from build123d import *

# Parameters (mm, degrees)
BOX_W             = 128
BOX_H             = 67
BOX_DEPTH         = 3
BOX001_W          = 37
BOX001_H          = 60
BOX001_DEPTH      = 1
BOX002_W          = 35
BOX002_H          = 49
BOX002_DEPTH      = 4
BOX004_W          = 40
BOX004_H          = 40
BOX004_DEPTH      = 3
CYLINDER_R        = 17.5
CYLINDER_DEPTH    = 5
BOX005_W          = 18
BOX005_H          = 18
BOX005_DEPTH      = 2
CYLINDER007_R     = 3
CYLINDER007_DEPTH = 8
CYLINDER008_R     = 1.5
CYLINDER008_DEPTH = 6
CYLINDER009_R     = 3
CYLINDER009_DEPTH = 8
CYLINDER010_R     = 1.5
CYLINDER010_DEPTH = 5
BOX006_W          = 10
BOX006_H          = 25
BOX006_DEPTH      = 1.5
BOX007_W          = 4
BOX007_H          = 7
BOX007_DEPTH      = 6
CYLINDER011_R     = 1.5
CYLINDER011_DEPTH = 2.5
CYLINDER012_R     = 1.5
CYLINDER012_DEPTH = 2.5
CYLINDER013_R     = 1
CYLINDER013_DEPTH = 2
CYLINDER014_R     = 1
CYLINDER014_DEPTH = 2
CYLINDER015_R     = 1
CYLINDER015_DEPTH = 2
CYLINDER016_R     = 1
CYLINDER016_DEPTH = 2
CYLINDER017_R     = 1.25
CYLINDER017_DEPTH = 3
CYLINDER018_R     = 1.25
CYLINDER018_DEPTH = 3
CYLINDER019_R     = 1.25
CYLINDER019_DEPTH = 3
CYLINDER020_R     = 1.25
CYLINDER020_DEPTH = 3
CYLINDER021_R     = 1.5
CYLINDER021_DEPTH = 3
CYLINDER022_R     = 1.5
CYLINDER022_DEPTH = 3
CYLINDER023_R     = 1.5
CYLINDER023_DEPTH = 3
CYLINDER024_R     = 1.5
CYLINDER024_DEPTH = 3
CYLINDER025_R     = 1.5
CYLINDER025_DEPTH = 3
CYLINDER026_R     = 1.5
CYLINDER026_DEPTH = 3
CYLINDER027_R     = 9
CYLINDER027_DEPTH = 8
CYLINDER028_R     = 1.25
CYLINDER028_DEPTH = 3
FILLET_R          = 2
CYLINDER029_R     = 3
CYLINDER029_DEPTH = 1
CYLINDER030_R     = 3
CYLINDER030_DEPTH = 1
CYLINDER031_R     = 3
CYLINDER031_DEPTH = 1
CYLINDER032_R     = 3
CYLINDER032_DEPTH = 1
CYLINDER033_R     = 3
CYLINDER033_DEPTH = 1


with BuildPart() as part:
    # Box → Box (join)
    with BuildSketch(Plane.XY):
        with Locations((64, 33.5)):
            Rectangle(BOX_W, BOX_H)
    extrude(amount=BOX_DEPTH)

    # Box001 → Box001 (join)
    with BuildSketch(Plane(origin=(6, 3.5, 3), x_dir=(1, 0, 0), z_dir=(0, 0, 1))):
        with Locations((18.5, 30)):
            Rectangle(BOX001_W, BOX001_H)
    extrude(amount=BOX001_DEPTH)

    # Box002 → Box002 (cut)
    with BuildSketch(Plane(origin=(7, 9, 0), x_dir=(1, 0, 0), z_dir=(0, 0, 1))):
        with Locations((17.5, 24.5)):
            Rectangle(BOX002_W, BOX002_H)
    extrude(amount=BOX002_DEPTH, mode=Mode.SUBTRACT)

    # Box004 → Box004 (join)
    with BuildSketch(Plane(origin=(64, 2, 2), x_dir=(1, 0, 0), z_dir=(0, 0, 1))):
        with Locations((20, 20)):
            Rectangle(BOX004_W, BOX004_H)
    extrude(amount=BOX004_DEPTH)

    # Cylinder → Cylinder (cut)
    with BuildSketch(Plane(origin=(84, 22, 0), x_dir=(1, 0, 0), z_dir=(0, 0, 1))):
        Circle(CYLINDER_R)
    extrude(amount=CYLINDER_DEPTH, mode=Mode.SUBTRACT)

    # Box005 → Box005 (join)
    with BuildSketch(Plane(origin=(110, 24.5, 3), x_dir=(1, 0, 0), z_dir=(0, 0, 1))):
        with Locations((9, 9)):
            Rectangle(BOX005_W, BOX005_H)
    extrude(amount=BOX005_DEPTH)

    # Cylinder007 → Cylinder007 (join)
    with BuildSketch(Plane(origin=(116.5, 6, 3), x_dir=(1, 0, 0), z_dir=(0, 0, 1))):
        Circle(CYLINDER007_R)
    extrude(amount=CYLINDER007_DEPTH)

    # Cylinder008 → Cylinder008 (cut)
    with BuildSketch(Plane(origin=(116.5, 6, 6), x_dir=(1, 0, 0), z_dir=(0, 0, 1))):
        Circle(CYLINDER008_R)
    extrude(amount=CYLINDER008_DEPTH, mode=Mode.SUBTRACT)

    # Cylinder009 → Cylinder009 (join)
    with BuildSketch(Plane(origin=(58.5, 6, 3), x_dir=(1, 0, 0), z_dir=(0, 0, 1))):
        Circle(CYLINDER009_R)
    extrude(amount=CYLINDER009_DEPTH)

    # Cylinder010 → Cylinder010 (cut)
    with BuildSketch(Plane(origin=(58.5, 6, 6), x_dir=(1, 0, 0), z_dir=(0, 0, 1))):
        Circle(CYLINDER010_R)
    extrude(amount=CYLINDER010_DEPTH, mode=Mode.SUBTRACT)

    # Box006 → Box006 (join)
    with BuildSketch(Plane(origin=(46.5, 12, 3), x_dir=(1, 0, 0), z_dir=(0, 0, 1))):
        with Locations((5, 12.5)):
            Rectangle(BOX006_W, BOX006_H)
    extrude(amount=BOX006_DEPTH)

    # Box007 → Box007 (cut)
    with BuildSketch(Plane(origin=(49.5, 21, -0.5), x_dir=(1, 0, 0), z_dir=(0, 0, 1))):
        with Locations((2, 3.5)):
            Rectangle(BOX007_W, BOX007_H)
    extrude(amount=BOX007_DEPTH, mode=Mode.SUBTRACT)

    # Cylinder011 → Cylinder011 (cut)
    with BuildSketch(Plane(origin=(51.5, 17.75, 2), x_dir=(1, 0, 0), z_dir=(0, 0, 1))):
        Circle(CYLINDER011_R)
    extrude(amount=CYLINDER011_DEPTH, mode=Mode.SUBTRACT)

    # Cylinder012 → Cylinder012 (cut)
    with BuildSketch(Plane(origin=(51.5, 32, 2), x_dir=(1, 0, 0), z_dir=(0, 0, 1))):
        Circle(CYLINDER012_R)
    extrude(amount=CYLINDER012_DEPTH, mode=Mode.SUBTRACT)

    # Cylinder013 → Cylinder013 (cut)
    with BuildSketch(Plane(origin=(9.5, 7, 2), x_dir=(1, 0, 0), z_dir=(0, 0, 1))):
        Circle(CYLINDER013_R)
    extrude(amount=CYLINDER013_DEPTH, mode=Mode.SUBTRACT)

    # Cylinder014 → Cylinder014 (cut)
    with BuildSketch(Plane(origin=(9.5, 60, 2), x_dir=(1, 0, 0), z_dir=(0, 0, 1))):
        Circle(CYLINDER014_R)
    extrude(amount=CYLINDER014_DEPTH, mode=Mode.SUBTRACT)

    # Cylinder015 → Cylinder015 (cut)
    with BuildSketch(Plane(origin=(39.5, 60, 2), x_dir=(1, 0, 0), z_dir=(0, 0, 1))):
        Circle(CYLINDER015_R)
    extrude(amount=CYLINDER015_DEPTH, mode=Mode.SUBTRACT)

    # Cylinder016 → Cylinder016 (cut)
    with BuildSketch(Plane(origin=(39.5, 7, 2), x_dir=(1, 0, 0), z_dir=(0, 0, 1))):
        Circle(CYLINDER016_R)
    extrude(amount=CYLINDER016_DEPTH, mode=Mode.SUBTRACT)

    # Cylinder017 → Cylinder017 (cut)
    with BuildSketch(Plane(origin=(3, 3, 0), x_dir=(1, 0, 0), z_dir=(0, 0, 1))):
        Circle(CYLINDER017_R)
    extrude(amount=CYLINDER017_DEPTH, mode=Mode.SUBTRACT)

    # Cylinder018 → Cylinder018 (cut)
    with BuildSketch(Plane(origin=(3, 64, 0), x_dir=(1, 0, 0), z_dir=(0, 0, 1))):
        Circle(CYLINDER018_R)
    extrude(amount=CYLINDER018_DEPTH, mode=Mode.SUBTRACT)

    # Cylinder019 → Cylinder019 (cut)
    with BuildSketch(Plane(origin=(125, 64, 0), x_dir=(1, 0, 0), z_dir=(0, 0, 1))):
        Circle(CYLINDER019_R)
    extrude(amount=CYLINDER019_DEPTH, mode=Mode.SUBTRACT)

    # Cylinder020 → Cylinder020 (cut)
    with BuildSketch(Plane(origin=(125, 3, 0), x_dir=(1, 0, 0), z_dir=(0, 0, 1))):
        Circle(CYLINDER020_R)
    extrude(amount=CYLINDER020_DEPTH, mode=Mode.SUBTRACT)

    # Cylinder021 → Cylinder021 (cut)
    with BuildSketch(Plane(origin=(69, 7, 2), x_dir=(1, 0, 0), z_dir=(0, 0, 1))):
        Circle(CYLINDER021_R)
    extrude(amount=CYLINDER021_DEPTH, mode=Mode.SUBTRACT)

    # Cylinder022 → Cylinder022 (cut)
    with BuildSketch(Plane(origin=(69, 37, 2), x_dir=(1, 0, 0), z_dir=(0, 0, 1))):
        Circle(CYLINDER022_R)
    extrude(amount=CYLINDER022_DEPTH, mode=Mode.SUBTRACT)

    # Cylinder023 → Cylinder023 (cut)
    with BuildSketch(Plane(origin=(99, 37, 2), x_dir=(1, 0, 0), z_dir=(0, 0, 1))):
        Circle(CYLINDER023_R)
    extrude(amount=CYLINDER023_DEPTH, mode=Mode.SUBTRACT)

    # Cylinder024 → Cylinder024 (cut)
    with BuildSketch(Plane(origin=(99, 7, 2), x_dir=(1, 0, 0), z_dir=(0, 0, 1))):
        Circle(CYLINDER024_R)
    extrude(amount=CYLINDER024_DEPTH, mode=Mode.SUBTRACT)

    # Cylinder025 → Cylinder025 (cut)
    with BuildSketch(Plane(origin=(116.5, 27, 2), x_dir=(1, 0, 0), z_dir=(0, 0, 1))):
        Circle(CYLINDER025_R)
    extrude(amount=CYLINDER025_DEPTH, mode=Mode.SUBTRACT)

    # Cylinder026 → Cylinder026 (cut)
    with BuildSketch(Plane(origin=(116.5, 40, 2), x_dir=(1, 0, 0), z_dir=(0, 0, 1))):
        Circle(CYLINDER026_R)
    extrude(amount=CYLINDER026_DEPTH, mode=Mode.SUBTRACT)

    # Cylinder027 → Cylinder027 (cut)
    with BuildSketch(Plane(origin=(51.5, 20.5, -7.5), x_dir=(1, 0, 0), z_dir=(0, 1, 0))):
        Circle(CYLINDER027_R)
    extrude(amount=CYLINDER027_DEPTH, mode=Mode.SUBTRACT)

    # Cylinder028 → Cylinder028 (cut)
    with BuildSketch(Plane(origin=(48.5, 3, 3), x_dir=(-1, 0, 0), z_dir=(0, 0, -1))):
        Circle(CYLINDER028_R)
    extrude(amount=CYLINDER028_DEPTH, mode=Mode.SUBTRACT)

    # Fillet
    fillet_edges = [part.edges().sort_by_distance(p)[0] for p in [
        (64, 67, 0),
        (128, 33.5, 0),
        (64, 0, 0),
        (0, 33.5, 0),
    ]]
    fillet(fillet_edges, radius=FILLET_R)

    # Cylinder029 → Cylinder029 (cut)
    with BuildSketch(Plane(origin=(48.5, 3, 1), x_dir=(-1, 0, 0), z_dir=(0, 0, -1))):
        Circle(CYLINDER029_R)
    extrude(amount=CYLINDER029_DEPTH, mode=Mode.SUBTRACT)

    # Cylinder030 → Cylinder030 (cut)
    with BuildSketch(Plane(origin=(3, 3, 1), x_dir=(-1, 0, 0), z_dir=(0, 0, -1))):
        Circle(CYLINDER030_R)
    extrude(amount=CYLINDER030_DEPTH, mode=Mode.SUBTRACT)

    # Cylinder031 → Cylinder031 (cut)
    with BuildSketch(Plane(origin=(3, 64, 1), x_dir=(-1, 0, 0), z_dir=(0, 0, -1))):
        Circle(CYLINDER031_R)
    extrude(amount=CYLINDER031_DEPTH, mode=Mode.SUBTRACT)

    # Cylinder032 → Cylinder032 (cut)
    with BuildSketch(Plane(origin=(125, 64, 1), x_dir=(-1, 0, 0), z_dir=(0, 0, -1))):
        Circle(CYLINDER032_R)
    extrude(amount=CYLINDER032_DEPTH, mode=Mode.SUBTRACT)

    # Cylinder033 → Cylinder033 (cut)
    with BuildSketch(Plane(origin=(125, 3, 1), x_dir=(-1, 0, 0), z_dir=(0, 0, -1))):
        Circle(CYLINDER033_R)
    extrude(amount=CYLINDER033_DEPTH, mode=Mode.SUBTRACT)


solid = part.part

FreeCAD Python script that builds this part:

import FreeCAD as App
import Part
import Sketcher
from FreeCAD import Vector
Q = App.Units.Quantity


def edges_at(feature, points):
    """Names of the edges that pass closest to the given points."""
    edges = feature.Shape.Edges
    near = lambda p: min(range(len(edges)), key=lambda i: edges[i].distToShape(Part.Vertex(*p))[0])
    return sorted({f"Edge{near(p) + 1}" for p in points})


def add_polygon(sketch, points):
    """Adds a closed chain of lines whose ends are joined by coincident constraints."""
    first, n = sketch.GeometryCount, len(points)
    for a, b in zip(points, points[1:] + points[:1]):
        sketch.addGeometry(Part.LineSegment(App.Vector(*a, 0), App.Vector(*b, 0)), False)
    for i in range(n):
        sketch.addConstraint(Sketcher.Constraint("Coincident", first + i, 2, first + (i + 1) % n, 1))

doc = App.newDocument("Part")
body = doc.addObject("PartDesign::Body", "Body")

sketch1 = body.newObject("Sketcher::SketchObject", "Sketch")
sketch1.AttachmentSupport = (doc.getObject("XY_Plane"), [""])
sketch1.MapMode = "FlatFace"
add_polygon(sketch1, [(0, 67), (0, 0), (128, 0), (128, 67)])
sketch1.addConstraint(Sketcher.Constraint("Vertical", 0))
sketch1.addConstraint(Sketcher.Constraint("Horizontal", 1))
sketch1.addConstraint(Sketcher.Constraint("Vertical", 2))
sketch1.addConstraint(Sketcher.Constraint("Horizontal", 3))
sketch1.addConstraint(Sketcher.Constraint("Coincident", 0, 2, -1, 1))
sketch1.addConstraint(Sketcher.Constraint("DistanceX", 1, 1, 1, 2, Q("128 mm")))
sketch1.addConstraint(Sketcher.Constraint("DistanceY", 0, 2, 0, 1, Q("67 mm")))
pad1 = body.newObject("PartDesign::Pad", "Pad")
pad1.Profile = sketch1
pad1.Length = 3

sketch2 = body.newObject("Sketcher::SketchObject", "Sketch001")
sketch2.AttachmentSupport = (doc.getObject("XY_Plane"), [""])
sketch2.MapMode = "FlatFace"
sketch2.AttachmentOffset = App.Placement(Vector(0, 0, 3), App.Rotation())
add_polygon(sketch2, [(6, 64), (6, 4), (43, 4), (43, 64)])
sketch2.addConstraint(Sketcher.Constraint("Vertical", 0))
sketch2.addConstraint(Sketcher.Constraint("Horizontal", 1))
sketch2.addConstraint(Sketcher.Constraint("Vertical", 2))
sketch2.addConstraint(Sketcher.Constraint("Horizontal", 3))
sketch2.addConstraint(Sketcher.Constraint("DistanceX", 1, 1, 1, 2, Q("37 mm")))
sketch2.addConstraint(Sketcher.Constraint("DistanceY", 0, 2, 0, 1, Q("60 mm")))
sketch2.addConstraint(Sketcher.Constraint("DistanceX", -1, 1, 0, 2, Q("6 mm")))
sketch2.addConstraint(Sketcher.Constraint("DistanceY", -1, 1, 0, 2, Q("3.5 mm")))
pad2 = body.newObject("PartDesign::Pad", "Pad001")
pad2.Profile = sketch2
pad2.Length = 1

sketch3 = body.newObject("Sketcher::SketchObject", "Sketch002")
sketch3.AttachmentSupport = (doc.getObject("XY_Plane"), [""])
sketch3.MapMode = "FlatFace"
add_polygon(sketch3, [(7, 58), (7, 9), (42, 9), (42, 58)])
sketch3.addConstraint(Sketcher.Constraint("Vertical", 0))
sketch3.addConstraint(Sketcher.Constraint("Horizontal", 1))
sketch3.addConstraint(Sketcher.Constraint("Vertical", 2))
sketch3.addConstraint(Sketcher.Constraint("Horizontal", 3))
sketch3.addConstraint(Sketcher.Constraint("DistanceX", 1, 1, 1, 2, Q("35 mm")))
sketch3.addConstraint(Sketcher.Constraint("DistanceY", 0, 2, 0, 1, Q("49 mm")))
sketch3.addConstraint(Sketcher.Constraint("DistanceX", -1, 1, 0, 2, Q("7 mm")))
sketch3.addConstraint(Sketcher.Constraint("DistanceY", -1, 1, 0, 2, Q("9 mm")))
pocket1 = body.newObject("PartDesign::Pocket", "Pocket")
pocket1.Profile = sketch3
pocket1.Length = 4
pocket1.Reversed = True

sketch4 = body.newObject("Sketcher::SketchObject", "Sketch003")
sketch4.AttachmentSupport = (doc.getObject("XY_Plane"), [""])
sketch4.MapMode = "FlatFace"
sketch4.AttachmentOffset = App.Placement(Vector(0, 0, 2), App.Rotation())
add_polygon(sketch4, [(64, 42), (64, 2), (104, 2), (104, 42)])
sketch4.addConstraint(Sketcher.Constraint("Vertical", 0))
sketch4.addConstraint(Sketcher.Constraint("Horizontal", 1))
sketch4.addConstraint(Sketcher.Constraint("Vertical", 2))
sketch4.addConstraint(Sketcher.Constraint("Horizontal", 3))
sketch4.addConstraint(Sketcher.Constraint("Equal", 3, 0))
sketch4.addConstraint(Sketcher.Constraint("DistanceX", 1, 1, 1, 2, Q("40 mm")))
sketch4.addConstraint(Sketcher.Constraint("DistanceX", -1, 1, 0, 2, Q("64 mm")))
sketch4.addConstraint(Sketcher.Constraint("DistanceY", -1, 1, 0, 2, Q("2 mm")))
pad3 = body.newObject("PartDesign::Pad", "Pad002")
pad3.Profile = sketch4
pad3.Length = 3

sketch5 = body.newObject("Sketcher::SketchObject", "Sketch004")
sketch5.AttachmentSupport = (doc.getObject("XY_Plane"), [""])
sketch5.MapMode = "FlatFace"
sketch5.addGeometry(Part.Circle(Vector(84, 22, 0), Vector(0, 0, 1), 18), False)
sketch5.addConstraint(Sketcher.Constraint("Diameter", 0, Q("35 mm")))
sketch5.addConstraint(Sketcher.Constraint("DistanceX", -1, 1, 0, 3, Q("84 mm")))
sketch5.addConstraint(Sketcher.Constraint("DistanceY", -1, 1, 0, 3, Q("22 mm")))
pocket2 = body.newObject("PartDesign::Pocket", "Pocket001")
pocket2.Profile = sketch5
pocket2.Length = 5
pocket2.Reversed = True

sketch6 = body.newObject("Sketcher::SketchObject", "Sketch005")
sketch6.AttachmentSupport = (doc.getObject("XY_Plane"), [""])
sketch6.MapMode = "FlatFace"
sketch6.AttachmentOffset = App.Placement(Vector(0, 0, 3), App.Rotation())
add_polygon(sketch6, [(110, 42), (110, 24), (128, 24), (128, 42)])
sketch6.addConstraint(Sketcher.Constraint("Vertical", 0))
sketch6.addConstraint(Sketcher.Constraint("Horizontal", 1))
sketch6.addConstraint(Sketcher.Constraint("Vertical", 2))
sketch6.addConstraint(Sketcher.Constraint("Horizontal", 3))
sketch6.addConstraint(Sketcher.Constraint("Equal", 3, 0))
sketch6.addConstraint(Sketcher.Constraint("DistanceX", 1, 1, 1, 2, Q("18 mm")))
sketch6.addConstraint(Sketcher.Constraint("DistanceX", -1, 1, 0, 2, Q("110 mm")))
sketch6.addConstraint(Sketcher.Constraint("DistanceY", -1, 1, 0, 2, Q("24.5 mm")))
pad4 = body.newObject("PartDesign::Pad", "Pad003")
pad4.Profile = sketch6
pad4.Length = 2

sketch7 = body.newObject("Sketcher::SketchObject", "Sketch006")
sketch7.AttachmentSupport = (doc.getObject("XY_Plane"), [""])
sketch7.MapMode = "FlatFace"
sketch7.AttachmentOffset = App.Placement(Vector(0, 0, 3), App.Rotation())
sketch7.addGeometry(Part.Circle(Vector(116.5, 6, 0), Vector(0, 0, 1), 3), False)
sketch7.addConstraint(Sketcher.Constraint("Diameter", 0, Q("6 mm")))
sketch7.addConstraint(Sketcher.Constraint("DistanceY", -1, 1, 0, 3, Q("6 mm")))
sketch7.addConstraint(Sketcher.Constraint("DistanceX", -1, 1, 0, 3, Q("116.5 mm")))
pad5 = body.newObject("PartDesign::Pad", "Pad004")
pad5.Profile = sketch7
pad5.Length = 8

sketch8 = body.newObject("Sketcher::SketchObject", "Sketch007")
sketch8.AttachmentSupport = (doc.getObject("XY_Plane"), [""])
sketch8.MapMode = "FlatFace"
sketch8.AttachmentOffset = App.Placement(Vector(0, 0, 6), App.Rotation())
sketch8.addGeometry(Part.Circle(Vector(116.5, 6, 0), Vector(0, 0, 1), 1.5), False)
sketch8.addConstraint(Sketcher.Constraint("Diameter", 0, Q("3 mm")))
sketch8.addConstraint(Sketcher.Constraint("DistanceY", -1, 1, 0, 3, Q("6 mm")))
sketch8.addConstraint(Sketcher.Constraint("DistanceX", -1, 1, 0, 3, Q("116.5 mm")))
pocket3 = body.newObject("PartDesign::Pocket", "Pocket002")
pocket3.Profile = sketch8
pocket3.Length = 6
pocket3.Reversed = True

sketch9 = body.newObject("Sketcher::SketchObject", "Sketch008")
sketch9.AttachmentSupport = (doc.getObject("XY_Plane"), [""])
sketch9.MapMode = "FlatFace"
sketch9.AttachmentOffset = App.Placement(Vector(0, 0, 3), App.Rotation())
sketch9.addGeometry(Part.Circle(Vector(58.5, 6, 0), Vector(0, 0, 1), 3), False)
sketch9.addConstraint(Sketcher.Constraint("Diameter", 0, Q("6 mm")))
sketch9.addConstraint(Sketcher.Constraint("DistanceY", -1, 1, 0, 3, Q("6 mm")))
sketch9.addConstraint(Sketcher.Constraint("DistanceX", -1, 1, 0, 3, Q("58.5 mm")))
pad6 = body.newObject("PartDesign::Pad", "Pad005")
pad6.Profile = sketch9
pad6.Length = 8

sketch10 = body.newObject("Sketcher::SketchObject", "Sketch009")
sketch10.AttachmentSupport = (doc.getObject("XY_Plane"), [""])
sketch10.MapMode = "FlatFace"
sketch10.AttachmentOffset = App.Placement(Vector(0, 0, 6), App.Rotation())
sketch10.addGeometry(Part.Circle(Vector(58.5, 6, 0), Vector(0, 0, 1), 1.5), False)
sketch10.addConstraint(Sketcher.Constraint("Diameter", 0, Q("3 mm")))
sketch10.addConstraint(Sketcher.Constraint("DistanceY", -1, 1, 0, 3, Q("6 mm")))
sketch10.addConstraint(Sketcher.Constraint("DistanceX", -1, 1, 0, 3, Q("58.5 mm")))
pocket4 = body.newObject("PartDesign::Pocket", "Pocket003")
pocket4.Profile = sketch10
pocket4.Length = 5
pocket4.Reversed = True

sketch11 = body.newObject("Sketcher::SketchObject", "Sketch010")
sketch11.AttachmentSupport = (doc.getObject("XY_Plane"), [""])
sketch11.MapMode = "FlatFace"
sketch11.AttachmentOffset = App.Placement(Vector(0, 0, 3), App.Rotation())
add_polygon(sketch11, [(46, 37), (46, 12), (56, 12), (56, 37)])
sketch11.addConstraint(Sketcher.Constraint("Vertical", 0))
sketch11.addConstraint(Sketcher.Constraint("Horizontal", 1))
sketch11.addConstraint(Sketcher.Constraint("Vertical", 2))
sketch11.addConstraint(Sketcher.Constraint("Horizontal", 3))
sketch11.addConstraint(Sketcher.Constraint("DistanceX", 1, 1, 1, 2, Q("10 mm")))
sketch11.addConstraint(Sketcher.Constraint("DistanceY", 0, 2, 0, 1, Q("25 mm")))
sketch11.addConstraint(Sketcher.Constraint("DistanceY", -1, 1, 0, 2, Q("12 mm")))
sketch11.addConstraint(Sketcher.Constraint("DistanceX", -1, 1, 0, 2, Q("46.5 mm")))
pad7 = body.newObject("PartDesign::Pad", "Pad006")
pad7.Profile = sketch11
pad7.Length = 1.5

sketch12 = body.newObject("Sketcher::SketchObject", "Sketch011")
sketch12.AttachmentSupport = (doc.getObject("XY_Plane"), [""])
sketch12.MapMode = "FlatFace"
sketch12.AttachmentOffset = App.Placement(Vector(0, 0, -0.5), App.Rotation())
add_polygon(sketch12, [(49.5, 28), (49.5, 21), (53.5, 21), (53.5, 28)])
sketch12.addConstraint(Sketcher.Constraint("Vertical", 0))
sketch12.addConstraint(Sketcher.Constraint("Horizontal", 1))
sketch12.addConstraint(Sketcher.Constraint("Vertical", 2))
sketch12.addConstraint(Sketcher.Constraint("Horizontal", 3))
sketch12.addConstraint(Sketcher.Constraint("DistanceX", 1, 1, 1, 2, Q("4 mm")))
sketch12.addConstraint(Sketcher.Constraint("DistanceY", 0, 2, 0, 1, Q("7 mm")))
sketch12.addConstraint(Sketcher.Constraint("DistanceY", -1, 1, 0, 2, Q("21 mm")))
sketch12.addConstraint(Sketcher.Constraint("DistanceX", -1, 1, 0, 2, Q("49.5 mm")))
pocket5 = body.newObject("PartDesign::Pocket", "Pocket004")
pocket5.Profile = sketch12
pocket5.Length = 6
pocket5.Reversed = True

sketch13 = body.newObject("Sketcher::SketchObject", "Sketch012")
sketch13.AttachmentSupport = (doc.getObject("XY_Plane"), [""])
sketch13.MapMode = "FlatFace"
sketch13.AttachmentOffset = App.Placement(Vector(0, 0, 2), App.Rotation())
sketch13.addGeometry(Part.Circle(Vector(51.5, 17.8, 0), Vector(0, 0, 1), 1.5), False)
sketch13.addConstraint(Sketcher.Constraint("Diameter", 0, Q("3 mm")))
sketch13.addConstraint(Sketcher.Constraint("DistanceX", -1, 1, 0, 3, Q("51.5 mm")))
sketch13.addConstraint(Sketcher.Constraint("DistanceY", -1, 1, 0, 3, Q("17.75 mm")))
pocket6 = body.newObject("PartDesign::Pocket", "Pocket005")
pocket6.Profile = sketch13
pocket6.Length = 2.5
pocket6.Reversed = True

sketch14 = body.newObject("Sketcher::SketchObject", "Sketch013")
sketch14.AttachmentSupport = (doc.getObject("XY_Plane"), [""])
sketch14.MapMode = "FlatFace"
sketch14.AttachmentOffset = App.Placement(Vector(0, 0, 2), App.Rotation())
sketch14.addGeometry(Part.Circle(Vector(51.5, 32, 0), Vector(0, 0, 1), 1.5), False)
sketch14.addConstraint(Sketcher.Constraint("Diameter", 0, Q("3 mm")))
sketch14.addConstraint(Sketcher.Constraint("DistanceY", -1, 1, 0, 3, Q("32 mm")))
sketch14.addConstraint(Sketcher.Constraint("DistanceX", -1, 1, 0, 3, Q("51.5 mm")))
pocket7 = body.newObject("PartDesign::Pocket", "Pocket006")
pocket7.Profile = sketch14
pocket7.Length = 2.5
pocket7.Reversed = True

sketch15 = body.newObject("Sketcher::SketchObject", "Sketch014")
sketch15.AttachmentSupport = (doc.getObject("XY_Plane"), [""])
sketch15.MapMode = "FlatFace"
sketch15.AttachmentOffset = App.Placement(Vector(0, 0, 2), App.Rotation())
sketch15.addGeometry(Part.Circle(Vector(9.5, 7, 0), Vector(0, 0, 1), 1), False)
sketch15.addConstraint(Sketcher.Constraint("Diameter", 0, Q("2 mm")))
sketch15.addConstraint(Sketcher.Constraint("DistanceY", -1, 1, 0, 3, Q("7 mm")))
sketch15.addConstraint(Sketcher.Constraint("DistanceX", -1, 1, 0, 3, Q("9.5 mm")))
pocket8 = body.newObject("PartDesign::Pocket", "Pocket007")
pocket8.Profile = sketch15
pocket8.Length = 2
pocket8.Reversed = True

sketch16 = body.newObject("Sketcher::SketchObject", "Sketch015")
sketch16.AttachmentSupport = (doc.getObject("XY_Plane"), [""])
sketch16.MapMode = "FlatFace"
sketch16.AttachmentOffset = App.Placement(Vector(0, 0, 2), App.Rotation())
sketch16.addGeometry(Part.Circle(Vector(9.5, 60, 0), Vector(0, 0, 1), 1), False)
sketch16.addConstraint(Sketcher.Constraint("Diameter", 0, Q("2 mm")))
sketch16.addConstraint(Sketcher.Constraint("DistanceY", -1, 1, 0, 3, Q("60 mm")))
sketch16.addConstraint(Sketcher.Constraint("DistanceX", -1, 1, 0, 3, Q("9.5 mm")))
pocket9 = body.newObject("PartDesign::Pocket", "Pocket008")
pocket9.Profile = sketch16
pocket9.Length = 2
pocket9.Reversed = True

sketch17 = body.newObject("Sketcher::SketchObject", "Sketch016")
sketch17.AttachmentSupport = (doc.getObject("XY_Plane"), [""])
sketch17.MapMode = "FlatFace"
sketch17.AttachmentOffset = App.Placement(Vector(0, 0, 2), App.Rotation())
sketch17.addGeometry(Part.Circle(Vector(39.5, 60, 0), Vector(0, 0, 1), 1), False)
sketch17.addConstraint(Sketcher.Constraint("Diameter", 0, Q("2 mm")))
sketch17.addConstraint(Sketcher.Constraint("DistanceY", -1, 1, 0, 3, Q("60 mm")))
sketch17.addConstraint(Sketcher.Constraint("DistanceX", -1, 1, 0, 3, Q("39.5 mm")))
pocket10 = body.newObject("PartDesign::Pocket", "Pocket009")
pocket10.Profile = sketch17
pocket10.Length = 2
pocket10.Reversed = True

sketch18 = body.newObject("Sketcher::SketchObject", "Sketch017")
sketch18.AttachmentSupport = (doc.getObject("XY_Plane"), [""])
sketch18.MapMode = "FlatFace"
sketch18.AttachmentOffset = App.Placement(Vector(0, 0, 2), App.Rotation())
sketch18.addGeometry(Part.Circle(Vector(39.5, 7, 0), Vector(0, 0, 1), 1), False)
sketch18.addConstraint(Sketcher.Constraint("Diameter", 0, Q("2 mm")))
sketch18.addConstraint(Sketcher.Constraint("DistanceY", -1, 1, 0, 3, Q("7 mm")))
sketch18.addConstraint(Sketcher.Constraint("DistanceX", -1, 1, 0, 3, Q("39.5 mm")))
pocket11 = body.newObject("PartDesign::Pocket", "Pocket010")
pocket11.Profile = sketch18
pocket11.Length = 2
pocket11.Reversed = True

sketch19 = body.newObject("Sketcher::SketchObject", "Sketch018")
sketch19.AttachmentSupport = (doc.getObject("XY_Plane"), [""])
sketch19.MapMode = "FlatFace"
sketch19.addGeometry(Part.Circle(Vector(3, 3, 0), Vector(0, 0, 1), 1.2), False)
sketch19.addConstraint(Sketcher.Constraint("Diameter", 0, Q("2.5 mm")))
sketch19.addConstraint(Sketcher.Constraint("DistanceX", -1, 1, 0, 3, Q("3 mm")))
sketch19.addConstraint(Sketcher.Constraint("DistanceY", -1, 1, 0, 3, Q("3 mm")))
pocket12 = body.newObject("PartDesign::Pocket", "Pocket011")
pocket12.Profile = sketch19
pocket12.Length = 3
pocket12.Reversed = True

sketch20 = body.newObject("Sketcher::SketchObject", "Sketch019")
sketch20.AttachmentSupport = (doc.getObject("XY_Plane"), [""])
sketch20.MapMode = "FlatFace"
sketch20.addGeometry(Part.Circle(Vector(3, 64, 0), Vector(0, 0, 1), 1.2), False)
sketch20.addConstraint(Sketcher.Constraint("Diameter", 0, Q("2.5 mm")))
sketch20.addConstraint(Sketcher.Constraint("DistanceX", -1, 1, 0, 3, Q("3 mm")))
sketch20.addConstraint(Sketcher.Constraint("DistanceY", -1, 1, 0, 3, Q("64 mm")))
pocket13 = body.newObject("PartDesign::Pocket", "Pocket012")
pocket13.Profile = sketch20
pocket13.Length = 3
pocket13.Reversed = True

sketch21 = body.newObject("Sketcher::SketchObject", "Sketch020")
sketch21.AttachmentSupport = (doc.getObject("XY_Plane"), [""])
sketch21.MapMode = "FlatFace"
sketch21.addGeometry(Part.Circle(Vector(125, 64, 0), Vector(0, 0, 1), 1.2), False)
sketch21.addConstraint(Sketcher.Constraint("Diameter", 0, Q("2.5 mm")))
sketch21.addConstraint(Sketcher.Constraint("DistanceX", -1, 1, 0, 3, Q("125 mm")))
sketch21.addConstraint(Sketcher.Constraint("DistanceY", -1, 1, 0, 3, Q("64 mm")))
pocket14 = body.newObject("PartDesign::Pocket", "Pocket013")
pocket14.Profile = sketch21
pocket14.Length = 3
pocket14.Reversed = True

sketch22 = body.newObject("Sketcher::SketchObject", "Sketch021")
sketch22.AttachmentSupport = (doc.getObject("XY_Plane"), [""])
sketch22.MapMode = "FlatFace"
sketch22.addGeometry(Part.Circle(Vector(125, 3, 0), Vector(0, 0, 1), 1.2), False)
sketch22.addConstraint(Sketcher.Constraint("Diameter", 0, Q("2.5 mm")))
sketch22.addConstraint(Sketcher.Constraint("DistanceX", -1, 1, 0, 3, Q("125 mm")))
sketch22.addConstraint(Sketcher.Constraint("DistanceY", -1, 1, 0, 3, Q("3 mm")))
pocket15 = body.newObject("PartDesign::Pocket", "Pocket014")
pocket15.Profile = sketch22
pocket15.Length = 3
pocket15.Reversed = True

sketch23 = body.newObject("Sketcher::SketchObject", "Sketch022")
sketch23.AttachmentSupport = (doc.getObject("XY_Plane"), [""])
sketch23.MapMode = "FlatFace"
sketch23.AttachmentOffset = App.Placement(Vector(0, 0, 2), App.Rotation())
sketch23.addGeometry(Part.Circle(Vector(69, 7, 0), Vector(0, 0, 1), 1.5), False)
sketch23.addConstraint(Sketcher.Constraint("Diameter", 0, Q("3 mm")))
sketch23.addConstraint(Sketcher.Constraint("DistanceX", -1, 1, 0, 3, Q("69 mm")))
sketch23.addConstraint(Sketcher.Constraint("DistanceY", -1, 1, 0, 3, Q("7 mm")))
pocket16 = body.newObject("PartDesign::Pocket", "Pocket015")
pocket16.Profile = sketch23
pocket16.Length = 3
pocket16.Reversed = True

sketch24 = body.newObject("Sketcher::SketchObject", "Sketch023")
sketch24.AttachmentSupport = (doc.getObject("XY_Plane"), [""])
sketch24.MapMode = "FlatFace"
sketch24.AttachmentOffset = App.Placement(Vector(0, 0, 2), App.Rotation())
sketch24.addGeometry(Part.Circle(Vector(69, 37, 0), Vector(0, 0, 1), 1.5), False)
sketch24.addConstraint(Sketcher.Constraint("Diameter", 0, Q("3 mm")))
sketch24.addConstraint(Sketcher.Constraint("DistanceX", -1, 1, 0, 3, Q("69 mm")))
sketch24.addConstraint(Sketcher.Constraint("DistanceY", -1, 1, 0, 3, Q("37 mm")))
pocket17 = body.newObject("PartDesign::Pocket", "Pocket016")
pocket17.Profile = sketch24
pocket17.Length = 3
pocket17.Reversed = True

sketch25 = body.newObject("Sketcher::SketchObject", "Sketch024")
sketch25.AttachmentSupport = (doc.getObject("XY_Plane"), [""])
sketch25.MapMode = "FlatFace"
sketch25.AttachmentOffset = App.Placement(Vector(0, 0, 2), App.Rotation())
sketch25.addGeometry(Part.Circle(Vector(99, 37, 0), Vector(0, 0, 1), 1.5), False)
sketch25.addConstraint(Sketcher.Constraint("Diameter", 0, Q("3 mm")))
sketch25.addConstraint(Sketcher.Constraint("DistanceX", -1, 1, 0, 3, Q("99 mm")))
sketch25.addConstraint(Sketcher.Constraint("DistanceY", -1, 1, 0, 3, Q("37 mm")))
pocket18 = body.newObject("PartDesign::Pocket", "Pocket017")
pocket18.Profile = sketch25
pocket18.Length = 3
pocket18.Reversed = True

sketch26 = body.newObject("Sketcher::SketchObject", "Sketch025")
sketch26.AttachmentSupport = (doc.getObject("XY_Plane"), [""])
sketch26.MapMode = "FlatFace"
sketch26.AttachmentOffset = App.Placement(Vector(0, 0, 2), App.Rotation())
sketch26.addGeometry(Part.Circle(Vector(99, 7, 0), Vector(0, 0, 1), 1.5), False)
sketch26.addConstraint(Sketcher.Constraint("Diameter", 0, Q("3 mm")))
sketch26.addConstraint(Sketcher.Constraint("DistanceX", -1, 1, 0, 3, Q("99 mm")))
sketch26.addConstraint(Sketcher.Constraint("DistanceY", -1, 1, 0, 3, Q("7 mm")))
pocket19 = body.newObject("PartDesign::Pocket", "Pocket018")
pocket19.Profile = sketch26
pocket19.Length = 3
pocket19.Reversed = True

sketch27 = body.newObject("Sketcher::SketchObject", "Sketch026")
sketch27.AttachmentSupport = (doc.getObject("XY_Plane"), [""])
sketch27.MapMode = "FlatFace"
sketch27.AttachmentOffset = App.Placement(Vector(0, 0, 2), App.Rotation())
sketch27.addGeometry(Part.Circle(Vector(116.5, 27, 0), Vector(0, 0, 1), 1.5), False)
sketch27.addConstraint(Sketcher.Constraint("Diameter", 0, Q("3 mm")))
sketch27.addConstraint(Sketcher.Constraint("DistanceY", -1, 1, 0, 3, Q("27 mm")))
sketch27.addConstraint(Sketcher.Constraint("DistanceX", -1, 1, 0, 3, Q("116.5 mm")))
pocket20 = body.newObject("PartDesign::Pocket", "Pocket019")
pocket20.Profile = sketch27
pocket20.Length = 3
pocket20.Reversed = True

sketch28 = body.newObject("Sketcher::SketchObject", "Sketch027")
sketch28.AttachmentSupport = (doc.getObject("XY_Plane"), [""])
sketch28.MapMode = "FlatFace"
sketch28.AttachmentOffset = App.Placement(Vector(0, 0, 2), App.Rotation())
sketch28.addGeometry(Part.Circle(Vector(116.5, 40, 0), Vector(0, 0, 1), 1.5), False)
sketch28.addConstraint(Sketcher.Constraint("Diameter", 0, Q("3 mm")))
sketch28.addConstraint(Sketcher.Constraint("DistanceY", -1, 1, 0, 3, Q("40 mm")))
sketch28.addConstraint(Sketcher.Constraint("DistanceX", -1, 1, 0, 3, Q("116.5 mm")))
pocket21 = body.newObject("PartDesign::Pocket", "Pocket020")
pocket21.Profile = sketch28
pocket21.Length = 3
pocket21.Reversed = True

sketch29 = body.newObject("Sketcher::SketchObject", "Sketch028")
sketch29.AttachmentSupport = (doc.getObject("XZ_Plane"), [""])
sketch29.MapMode = "FlatFace"
sketch29.AttachmentOffset = App.Placement(Vector(0, 0, -20.5), App.Rotation())
sketch29.addGeometry(Part.Circle(Vector(52, -8, 0), Vector(0, 0, 1), 9), False)
sketch29.addConstraint(Sketcher.Constraint("Diameter", 0, Q("18 mm")))
sketch29.addConstraint(Sketcher.Constraint("DistanceX", -1, 1, 0, 3, Q("51.5 mm")))
sketch29.addConstraint(Sketcher.Constraint("DistanceY", 0, 3, -1, 1, Q("7.5 mm")))
pocket22 = body.newObject("PartDesign::Pocket", "Pocket021")
pocket22.Profile = sketch29
pocket22.Length = 8

sketch30 = body.newObject("Sketcher::SketchObject", "Sketch029")
sketch30.AttachmentSupport = (doc.getObject("XY_Plane"), [""])
sketch30.MapMode = "FlatFace"
sketch30.AttachmentOffset = App.Placement(Vector(0, 0, 3), App.Rotation())
sketch30.addGeometry(Part.Circle(Vector(48.5, 3, 0), Vector(0, 0, 1), 1.2), False)
sketch30.addConstraint(Sketcher.Constraint("Diameter", 0, Q("2.5 mm")))
sketch30.addConstraint(Sketcher.Constraint("DistanceY", -1, 1, 0, 3, Q("3 mm")))
sketch30.addConstraint(Sketcher.Constraint("DistanceX", -1, 1, 0, 3, Q("48.5 mm")))
pocket23 = body.newObject("PartDesign::Pocket", "Pocket022")
pocket23.Profile = sketch30
pocket23.Length = 3
doc.recompute()

fillet = body.newObject("PartDesign::Fillet", "Fillet")
fillet.Base = (pocket23, edges_at(pocket23, [
    (64, 67, 0),
    (128, 33.5, 0),
    (64, 0, 0),
    (0, 33.5, 0),
]))
fillet.Radius = 2

sketch31 = body.newObject("Sketcher::SketchObject", "Sketch030")
sketch31.AttachmentSupport = (doc.getObject("XY_Plane"), [""])
sketch31.MapMode = "FlatFace"
sketch31.AttachmentOffset = App.Placement(Vector(0, 0, 1), App.Rotation())
sketch31.addGeometry(Part.Circle(Vector(48.5, 3, 0), Vector(0, 0, 1), 3), False)
sketch31.addConstraint(Sketcher.Constraint("Diameter", 0, Q("6 mm")))
sketch31.addConstraint(Sketcher.Constraint("DistanceY", -1, 1, 0, 3, Q("3 mm")))
sketch31.addConstraint(Sketcher.Constraint("DistanceX", -1, 1, 0, 3, Q("48.5 mm")))
pocket24 = body.newObject("PartDesign::Pocket", "Pocket023")
pocket24.Profile = sketch31
pocket24.Length = 1

sketch32 = body.newObject("Sketcher::SketchObject", "Sketch031")
sketch32.AttachmentSupport = (doc.getObject("XY_Plane"), [""])
sketch32.MapMode = "FlatFace"
sketch32.AttachmentOffset = App.Placement(Vector(0, 0, 1), App.Rotation())
sketch32.addGeometry(Part.Circle(Vector(3, 3, 0), Vector(0, 0, 1), 3), False)
sketch32.addConstraint(Sketcher.Constraint("Diameter", 0, Q("6 mm")))
sketch32.addConstraint(Sketcher.Constraint("DistanceX", -1, 1, 0, 3, Q("3 mm")))
sketch32.addConstraint(Sketcher.Constraint("DistanceY", -1, 1, 0, 3, Q("3 mm")))
pocket25 = body.newObject("PartDesign::Pocket", "Pocket024")
pocket25.Profile = sketch32
pocket25.Length = 1

sketch33 = body.newObject("Sketcher::SketchObject", "Sketch032")
sketch33.AttachmentSupport = (doc.getObject("XY_Plane"), [""])
sketch33.MapMode = "FlatFace"
sketch33.AttachmentOffset = App.Placement(Vector(0, 0, 1), App.Rotation())
sketch33.addGeometry(Part.Circle(Vector(3, 64, 0), Vector(0, 0, 1), 3), False)
sketch33.addConstraint(Sketcher.Constraint("Diameter", 0, Q("6 mm")))
sketch33.addConstraint(Sketcher.Constraint("DistanceX", -1, 1, 0, 3, Q("3 mm")))
sketch33.addConstraint(Sketcher.Constraint("DistanceY", -1, 1, 0, 3, Q("64 mm")))
pocket26 = body.newObject("PartDesign::Pocket", "Pocket025")
pocket26.Profile = sketch33
pocket26.Length = 1

sketch34 = body.newObject("Sketcher::SketchObject", "Sketch033")
sketch34.AttachmentSupport = (doc.getObject("XY_Plane"), [""])
sketch34.MapMode = "FlatFace"
sketch34.AttachmentOffset = App.Placement(Vector(0, 0, 1), App.Rotation())
sketch34.addGeometry(Part.Circle(Vector(125, 64, 0), Vector(0, 0, 1), 3), False)
sketch34.addConstraint(Sketcher.Constraint("Diameter", 0, Q("6 mm")))
sketch34.addConstraint(Sketcher.Constraint("DistanceX", -1, 1, 0, 3, Q("125 mm")))
sketch34.addConstraint(Sketcher.Constraint("DistanceY", -1, 1, 0, 3, Q("64 mm")))
pocket27 = body.newObject("PartDesign::Pocket", "Pocket026")
pocket27.Profile = sketch34
pocket27.Length = 1

sketch35 = body.newObject("Sketcher::SketchObject", "Sketch034")
sketch35.AttachmentSupport = (doc.getObject("XY_Plane"), [""])
sketch35.MapMode = "FlatFace"
sketch35.AttachmentOffset = App.Placement(Vector(0, 0, 1), App.Rotation())
sketch35.addGeometry(Part.Circle(Vector(125, 3, 0), Vector(0, 0, 1), 3), False)
sketch35.addConstraint(Sketcher.Constraint("Diameter", 0, Q("6 mm")))
sketch35.addConstraint(Sketcher.Constraint("DistanceX", -1, 1, 0, 3, Q("125 mm")))
sketch35.addConstraint(Sketcher.Constraint("DistanceY", -1, 1, 0, 3, Q("3 mm")))
pocket28 = body.newObject("PartDesign::Pocket", "Pocket027")
pocket28.Profile = sketch35
pocket28.Length = 1

doc.recompute()
